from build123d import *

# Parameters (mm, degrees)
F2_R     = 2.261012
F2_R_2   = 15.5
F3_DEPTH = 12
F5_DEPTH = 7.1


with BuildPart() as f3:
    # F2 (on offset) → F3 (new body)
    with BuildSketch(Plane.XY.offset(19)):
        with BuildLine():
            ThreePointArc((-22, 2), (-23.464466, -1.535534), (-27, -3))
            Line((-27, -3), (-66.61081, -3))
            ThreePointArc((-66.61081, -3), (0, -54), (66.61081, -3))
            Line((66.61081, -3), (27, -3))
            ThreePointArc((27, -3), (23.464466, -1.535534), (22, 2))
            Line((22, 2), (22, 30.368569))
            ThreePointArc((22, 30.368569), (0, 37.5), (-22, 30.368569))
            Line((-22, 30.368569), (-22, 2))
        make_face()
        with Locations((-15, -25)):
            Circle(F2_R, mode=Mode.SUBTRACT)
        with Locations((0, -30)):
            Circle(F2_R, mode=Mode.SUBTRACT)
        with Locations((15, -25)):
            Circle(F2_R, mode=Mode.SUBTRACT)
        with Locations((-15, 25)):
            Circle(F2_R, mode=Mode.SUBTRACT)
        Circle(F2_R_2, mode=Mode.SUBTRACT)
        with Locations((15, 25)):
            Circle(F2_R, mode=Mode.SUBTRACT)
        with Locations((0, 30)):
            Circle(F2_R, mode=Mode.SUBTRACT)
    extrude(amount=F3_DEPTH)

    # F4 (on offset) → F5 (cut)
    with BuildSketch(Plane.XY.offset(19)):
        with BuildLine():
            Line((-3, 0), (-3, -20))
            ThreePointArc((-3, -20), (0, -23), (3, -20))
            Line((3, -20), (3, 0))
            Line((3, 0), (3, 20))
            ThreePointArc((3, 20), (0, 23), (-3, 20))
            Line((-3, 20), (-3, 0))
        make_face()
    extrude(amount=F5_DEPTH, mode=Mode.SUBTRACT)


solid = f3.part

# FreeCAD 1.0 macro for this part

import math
import FreeCAD as App
import Part
import Sketcher

doc = App.newDocument("Part")
body = doc.addObject("PartDesign::Body", "Body")

sketch1 = body.newObject("Sketcher::SketchObject", "Sketch")
sketch1.AttachmentSupport = (doc.getObject("XY_Plane"), [""])
sketch1.MapMode = "FlatFace"
sketch1.AttachmentOffset = App.Placement(App.Vector(0, 0, 19), App.Rotation())
sketch1.addGeometry([
    Part.ArcOfCircle(Part.Circle(App.Vector(-27, 2, 0), App.Vector(0, 0, 1), 5), math.radians(-90), math.radians(0)),
    Part.LineSegment(App.Vector(-27, -3, 0), App.Vector(-66.6, -3, 0)),
    Part.ArcOfCircle(Part.Circle(App.Vector(0, 15, 0), App.Vector(0, 0, 1), 69), math.radians(-165), math.radians(-15)),
    Part.LineSegment(App.Vector(66.6, -3, 0), App.Vector(27, -3, 0)),
    Part.ArcOfCircle(Part.Circle(App.Vector(27, 2, 0), App.Vector(0, 0, 1), 5), math.radians(180), math.radians(270)),
    Part.LineSegment(App.Vector(22, 2, 0), App.Vector(22, 30.4, 0)),
    Part.ArcOfCircle(Part.Circle(App.Vector(0, 0, 0), App.Vector(0, 0, 1), 37.5), math.radians(54), math.radians(126)),
    Part.LineSegment(App.Vector(-22, 30.4, 0), App.Vector(-22, 2, 0)),
    Part.Circle(App.Vector(-15, -25, 0), App.Vector(0, 0, 1), 2.3),
    Part.Circle(App.Vector(0, -30, 0), App.Vector(0, 0, 1), 2.3),
    Part.Circle(App.Vector(15, -25, 0), App.Vector(0, 0, 1), 2.3),
    Part.Circle(App.Vector(-15, 25, 0), App.Vector(0, 0, 1), 2.3),
    Part.Circle(App.Vector(0, 0, 0), App.Vector(0, 0, 1), 15.5),
    Part.Circle(App.Vector(0, 30, 0), App.Vector(0, 0, 1), 2.3),
    Part.Circle(App.Vector(15, 25, 0), App.Vector(0, 0, 1), 2.3),
], False)
sketch1.addConstraint([
    Sketcher.Constraint("Tangent", 0, 1, 1, 1),
    Sketcher.Constraint("Coincident", 1, 2, 2, 1),
    Sketcher.Constraint("Coincident", 2, 2, 3, 1),
    Sketcher.Constraint("Tangent", 3, 2, 4, 2),
    Sketcher.Constraint("Tangent", 4, 1, 5, 1),
    Sketcher.Constraint("Coincident", 5, 2, 6, 1),
    Sketcher.Constraint("Coincident", 6, 2, 7, 1),
    Sketcher.Constraint("Tangent", 7, 2, 0, 2),
    Sketcher.Constraint("Horizontal", 1),
    Sketcher.Constraint("Horizontal", 3),
    Sketcher.Constraint("Vertical", 5),
    Sketcher.Constraint("Vertical", 7),
    Sketcher.Constraint("Coincident", 6, 3, -1, 1),
    Sketcher.Constraint("Coincident", 12, 3, -1, 1),
    Sketcher.Constraint("Equal", 0, 4),
    Sketcher.Constraint("Equal", 8, 9),
    Sketcher.Constraint("Equal", 9, 10),
    Sketcher.Constraint("Equal", 10, 11),
    Sketcher.Constraint("Equal", 11, 13),
    Sketcher.Constraint("Equal", 13, 14),
    Sketcher.Constraint("Symmetric", 10, 3, 11, 3, -1, 1),
    Sketcher.Constraint("Symmetric", 9, 3, 13, 3, -1, 1),
    Sketcher.Constraint("Symmetric", 8, 3, 14, 3, -1, 1),
    Sketcher.Constraint("Symmetric", 0, 3, 4, 3, -2),
    Sketcher.Constraint("Symmetric", 8, 3, 10, 3, -2),
    Sketcher.Constraint("PointOnObject", 2, 3, -2),
    Sketcher.Constraint("PointOnObject", 9, 3, -2),
    Sketcher.Constraint("Diameter", 12, 31.0),
    Sketcher.Constraint("Radius", 0, 5.0),
    Sketcher.Constraint("Radius", 2, 69.0),
    Sketcher.Constraint("Radius", 6, 37.499999),
    Sketcher.Constraint("DistanceX", 0, 3, -1, 1, 27.0),
    Sketcher.Constraint("DistanceY", -1, 1, 0, 3, 2.0),
    Sketcher.Constraint("DistanceY", -1, 1, 2, 3, 15.0),
    Sketcher.Constraint("DistanceX", 8, 3, -1, 1, 15.0),
    Sketcher.Constraint("DistanceY", 8, 3, -1, 1, 25.0),
    Sketcher.Constraint("DistanceY", 9, 3, -1, 1, 30.0),
    Sketcher.Constraint("Diameter", 8, 4.522024),
])
pad1 = body.newObject("PartDesign::Pad", "Pad")
pad1.Profile = sketch1
pad1.Length = 12

sketch2 = body.newObject("Sketcher::SketchObject", "Sketch001")
sketch2.AttachmentSupport = (doc.getObject("XY_Plane"), [""])
sketch2.MapMode = "FlatFace"
sketch2.AttachmentOffset = App.Placement(App.Vector(0, 0, 19), App.Rotation())
sketch2.addGeometry([
    Part.ArcOfCircle(Part.Circle(App.Vector(0, -20, 0), App.Vector(0, 0, 1), 3), math.radians(180), math.radians(360)),
    Part.LineSegment(App.Vector(3, -20, 0), App.Vector(3, 20, 0)),
    Part.ArcOfCircle(Part.Circle(App.Vector(0, 20, 0), App.Vector(0, 0, 1), 3), math.radians(0), math.radians(180)),
    Part.LineSegment(App.Vector(-3, 20, 0), App.Vector(-3, -20, 0)),
], False)
sketch2.addConstraint([
    Sketcher.Constraint("Tangent", 0, 2, 1, 1),
    Sketcher.Constraint("Tangent", 1, 2, 2, 1),
    Sketcher.Constraint("Tangent", 2, 2, 3, 1),
    Sketcher.Constraint("Tangent", 3, 2, 0, 1),
    Sketcher.Constraint("Vertical", 1),
    Sketcher.Constraint("Vertical", 3),
    Sketcher.Constraint("Symmetric", 0, 3, 2, 3, -1, 1),
    Sketcher.Constraint("Radius", 0, 3.0),
    Sketcher.Constraint("DistanceY", 1, 1, 1, 2, 40.0),
])
pocket1 = body.newObject("PartDesign::Pocket", "Pocket")
pocket1.Profile = sketch2
pocket1.Length = 7.1
pocket1.Reversed = True

doc.recompute()
